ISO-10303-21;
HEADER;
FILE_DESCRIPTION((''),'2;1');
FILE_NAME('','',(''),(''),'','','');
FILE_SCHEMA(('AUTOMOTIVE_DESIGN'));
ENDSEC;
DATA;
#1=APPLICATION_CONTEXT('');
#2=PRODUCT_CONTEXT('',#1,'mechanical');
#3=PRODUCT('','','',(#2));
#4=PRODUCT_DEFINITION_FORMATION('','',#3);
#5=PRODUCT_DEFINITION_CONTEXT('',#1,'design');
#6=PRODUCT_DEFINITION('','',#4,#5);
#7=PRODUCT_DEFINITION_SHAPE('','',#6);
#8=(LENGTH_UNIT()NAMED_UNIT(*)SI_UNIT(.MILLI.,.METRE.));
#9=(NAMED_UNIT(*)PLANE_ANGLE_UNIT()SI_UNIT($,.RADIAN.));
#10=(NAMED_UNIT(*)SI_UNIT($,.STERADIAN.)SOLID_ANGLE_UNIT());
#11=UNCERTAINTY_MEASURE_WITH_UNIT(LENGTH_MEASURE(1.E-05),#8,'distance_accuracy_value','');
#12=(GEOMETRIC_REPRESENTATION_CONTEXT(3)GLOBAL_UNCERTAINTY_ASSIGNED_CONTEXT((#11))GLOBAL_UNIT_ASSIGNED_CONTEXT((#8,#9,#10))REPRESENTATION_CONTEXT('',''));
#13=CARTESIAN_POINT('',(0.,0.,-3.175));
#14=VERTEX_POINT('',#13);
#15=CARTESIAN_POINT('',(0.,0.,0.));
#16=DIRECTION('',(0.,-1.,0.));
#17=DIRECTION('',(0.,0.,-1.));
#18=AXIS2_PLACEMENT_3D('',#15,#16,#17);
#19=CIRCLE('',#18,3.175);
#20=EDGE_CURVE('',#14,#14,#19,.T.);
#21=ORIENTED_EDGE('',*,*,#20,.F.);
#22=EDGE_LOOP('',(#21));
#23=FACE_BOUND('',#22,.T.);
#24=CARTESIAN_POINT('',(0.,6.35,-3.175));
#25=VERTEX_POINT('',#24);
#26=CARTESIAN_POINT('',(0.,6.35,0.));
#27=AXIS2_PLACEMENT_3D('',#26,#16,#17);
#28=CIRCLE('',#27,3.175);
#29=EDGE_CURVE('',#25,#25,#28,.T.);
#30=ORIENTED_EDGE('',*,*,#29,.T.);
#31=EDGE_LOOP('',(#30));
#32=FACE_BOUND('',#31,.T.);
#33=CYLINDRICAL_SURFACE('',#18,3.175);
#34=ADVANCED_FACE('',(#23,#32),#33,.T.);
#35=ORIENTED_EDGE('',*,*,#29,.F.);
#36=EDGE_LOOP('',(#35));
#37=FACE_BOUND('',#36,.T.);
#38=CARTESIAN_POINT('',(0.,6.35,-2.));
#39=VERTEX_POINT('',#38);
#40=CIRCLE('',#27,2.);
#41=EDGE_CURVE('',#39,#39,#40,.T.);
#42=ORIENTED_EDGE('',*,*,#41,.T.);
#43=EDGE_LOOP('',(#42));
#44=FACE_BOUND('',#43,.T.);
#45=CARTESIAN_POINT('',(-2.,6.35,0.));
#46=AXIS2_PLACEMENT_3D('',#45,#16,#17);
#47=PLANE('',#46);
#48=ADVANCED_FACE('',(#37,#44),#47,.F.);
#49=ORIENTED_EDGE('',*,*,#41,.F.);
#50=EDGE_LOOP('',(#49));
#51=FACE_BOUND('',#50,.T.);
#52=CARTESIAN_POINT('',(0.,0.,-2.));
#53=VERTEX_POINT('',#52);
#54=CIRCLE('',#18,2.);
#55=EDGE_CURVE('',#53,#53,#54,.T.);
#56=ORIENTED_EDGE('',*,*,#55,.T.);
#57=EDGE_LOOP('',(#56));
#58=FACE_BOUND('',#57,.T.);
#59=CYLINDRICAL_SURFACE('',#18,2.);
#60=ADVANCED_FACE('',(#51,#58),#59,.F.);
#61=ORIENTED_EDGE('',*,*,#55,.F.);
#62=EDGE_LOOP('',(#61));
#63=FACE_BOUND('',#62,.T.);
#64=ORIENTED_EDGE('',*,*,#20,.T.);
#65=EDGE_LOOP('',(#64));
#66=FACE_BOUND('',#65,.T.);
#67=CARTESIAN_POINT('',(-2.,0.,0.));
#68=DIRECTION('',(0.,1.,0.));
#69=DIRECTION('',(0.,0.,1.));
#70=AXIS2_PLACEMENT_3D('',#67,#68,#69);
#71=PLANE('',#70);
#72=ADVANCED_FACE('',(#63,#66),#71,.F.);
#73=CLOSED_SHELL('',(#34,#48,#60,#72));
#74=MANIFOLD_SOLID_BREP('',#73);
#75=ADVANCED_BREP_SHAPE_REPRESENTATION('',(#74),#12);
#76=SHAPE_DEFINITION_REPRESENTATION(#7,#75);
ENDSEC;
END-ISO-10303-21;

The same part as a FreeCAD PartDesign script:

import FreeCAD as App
import Part
import Sketcher
from FreeCAD import Vector
Q = App.Units.Quantity


def add_polygon(sketch, points):
    """Adds a closed chain of lines whose ends are joined by coincident constraints."""
    first, n = sketch.GeometryCount, len(points)
    for a, b in zip(points, points[1:] + points[:1]):
        sketch.addGeometry(Part.LineSegment(App.Vector(*a, 0), App.Vector(*b, 0)), False)
    for i in range(n):
        sketch.addConstraint(Sketcher.Constraint("Coincident", first + i, 2, first + (i + 1) % n, 1))

doc = App.newDocument("Part")
body = doc.addObject("PartDesign::Body", "Body")

# Sketch on XY plane
sketch1 = body.newObject("Sketcher::SketchObject", "Sketch")
sketch1.AttachmentSupport = (doc.getObject("XY_Plane"), [""])
sketch1.MapMode = "FlatFace"
add_polygon(sketch1, [(-3.2, 6.3), (-3.2, 0), (-2, 0), (-2, 6.3)])  # lines 0-3
sketch1.addConstraint([
    Sketcher.Constraint("Vertical", 0),
    Sketcher.Constraint("Horizontal", 1),
    Sketcher.Constraint("Vertical", 2),
    Sketcher.Constraint("Horizontal", 3),
    Sketcher.Constraint("PointOnObject", 0, 2, -1),
    Sketcher.Constraint("DistanceY", 0, 2, 0, 1, Q("0.25 in")),
    Sketcher.Constraint("DistanceX", 0, 2, -1, 1, Q("0.125 in")),
    Sketcher.Constraint("DistanceX", 1, 1, 1, 2, Q("1.175 mm")),
])
revolution = body.newObject("PartDesign::Revolution", "Revolution")
revolution.Profile = sketch1
revolution.ReferenceAxis = (sketch1, ["V_Axis"])
revolution.Angle = 360

doc.recompute()
